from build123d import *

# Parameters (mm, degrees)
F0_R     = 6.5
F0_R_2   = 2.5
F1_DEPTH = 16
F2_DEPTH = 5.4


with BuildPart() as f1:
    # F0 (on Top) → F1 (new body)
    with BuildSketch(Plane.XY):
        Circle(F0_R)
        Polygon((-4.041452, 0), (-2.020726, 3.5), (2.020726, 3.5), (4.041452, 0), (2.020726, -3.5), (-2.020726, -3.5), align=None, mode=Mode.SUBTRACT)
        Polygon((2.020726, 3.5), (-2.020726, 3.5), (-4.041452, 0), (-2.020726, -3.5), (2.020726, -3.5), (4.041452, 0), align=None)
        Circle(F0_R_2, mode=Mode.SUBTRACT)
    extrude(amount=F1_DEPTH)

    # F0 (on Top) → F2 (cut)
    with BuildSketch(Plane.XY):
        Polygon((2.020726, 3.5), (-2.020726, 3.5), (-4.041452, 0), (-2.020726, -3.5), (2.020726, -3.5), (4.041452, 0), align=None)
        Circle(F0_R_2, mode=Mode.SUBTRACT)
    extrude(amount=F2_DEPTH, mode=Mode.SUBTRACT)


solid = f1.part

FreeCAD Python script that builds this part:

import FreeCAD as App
import Part
import Sketcher

V = App.Vector
Q = App.Units.Quantity

doc = App.newDocument("Part")
body = doc.addObject("PartDesign::Body", "Body")

# Sketch on XY plane
sketch1 = doc.addObject("Sketcher::SketchObject", "Sketch")
body.addObject(sketch1)
sketch1.AttachmentSupport = (doc.XY_Plane, [""])
sketch1.MapMode = "FlatFace"
sketch1.addGeometry([
    Part.Circle(V(0, 0, 0), V(0, 0, 1), 6.5),
    Part.Circle(V(0, 0, 0), V(0, 0, 1), 2.5),
], False)
sketch1.addConstraint([
    Sketcher.Constraint("Coincident", 0, 3, -1, 1),
    Sketcher.Constraint("Coincident", 1, 3, -1, 1),
    Sketcher.Constraint("Diameter", 0, Q("13 mm")),
    Sketcher.Constraint("Diameter", 1, Q("5 mm")),
])
pad1 = doc.addObject("PartDesign::Pad", "Pad")
body.addObject(pad1)
pad1.Profile = sketch1
pad1.Length = 16

# Sketch on XY plane
sketch2 = doc.addObject("Sketcher::SketchObject", "Sketch001")
body.addObject(sketch2)
sketch2.AttachmentSupport = (doc.XY_Plane, [""])
sketch2.MapMode = "FlatFace"
sketch2.addGeometry([
    Part.LineSegment(V(2.020726, 3.5, 0), V(-2.020726, 3.5, 0)),  # 0
    Part.LineSegment(V(-2.020726, 3.5, 0), V(-4.041452, 0, 0)),  # 1
    Part.LineSegment(V(-4.041452, 0, 0), V(-2.020726, -3.5, 0)),  # 2
    Part.LineSegment(V(-2.020726, -3.5, 0), V(2.020726, -3.5, 0)),  # 3
    Part.LineSegment(V(2.020726, -3.5, 0), V(4.041452, 0, 0)),  # 4
    Part.LineSegment(V(4.041452, 0, 0), V(2.020726, 3.5, 0)),  # 5
    Part.Circle(V(0, 0, 0), V(0, 0, 1), 2.5),  # 6
], False)
sketch2.addConstraint([
    Sketcher.Constraint("Coincident", 0, 2, 1, 1),
    Sketcher.Constraint("Coincident", 1, 2, 2, 1),
    Sketcher.Constraint("Coincident", 2, 2, 3, 1),
    Sketcher.Constraint("Coincident", 3, 2, 4, 1),
    Sketcher.Constraint("Coincident", 4, 2, 5, 1),
    Sketcher.Constraint("Coincident", 5, 2, 0, 1),
    Sketcher.Constraint("Horizontal", 0),
    Sketcher.Constraint("Horizontal", 3),
    Sketcher.Constraint("Coincident", 6, 3, -1, 1),
    Sketcher.Constraint("Symmetric", 0, 2, 3, 2, -1, 1),
    Sketcher.Constraint("Symmetric", 1, 2, 4, 2, -1, 1),
    Sketcher.Constraint("PointOnObject", 1, 2, -1),
    Sketcher.Constraint("Parallel", 2, 5),
    Sketcher.Constraint("Vertical", 0, 2, 2, 2),
    Sketcher.Constraint("Diameter", 6, Q("5 mm")),
    Sketcher.Constraint("Angle", 1, Q("-120.000001 deg")),
    Sketcher.Constraint("DistanceY", 2, 2, 0, 2, Q("7 mm")),
    Sketcher.Constraint("DistanceX", 0, 2, 0, 1, Q("4.041452 mm")),
])
pocket1 = doc.addObject("PartDesign::Pocket", "Pocket")
body.addObject(pocket1)
pocket1.Profile = sketch2
pocket1.Length = 5.4
pocket1.Reversed = True

doc.recompute()
